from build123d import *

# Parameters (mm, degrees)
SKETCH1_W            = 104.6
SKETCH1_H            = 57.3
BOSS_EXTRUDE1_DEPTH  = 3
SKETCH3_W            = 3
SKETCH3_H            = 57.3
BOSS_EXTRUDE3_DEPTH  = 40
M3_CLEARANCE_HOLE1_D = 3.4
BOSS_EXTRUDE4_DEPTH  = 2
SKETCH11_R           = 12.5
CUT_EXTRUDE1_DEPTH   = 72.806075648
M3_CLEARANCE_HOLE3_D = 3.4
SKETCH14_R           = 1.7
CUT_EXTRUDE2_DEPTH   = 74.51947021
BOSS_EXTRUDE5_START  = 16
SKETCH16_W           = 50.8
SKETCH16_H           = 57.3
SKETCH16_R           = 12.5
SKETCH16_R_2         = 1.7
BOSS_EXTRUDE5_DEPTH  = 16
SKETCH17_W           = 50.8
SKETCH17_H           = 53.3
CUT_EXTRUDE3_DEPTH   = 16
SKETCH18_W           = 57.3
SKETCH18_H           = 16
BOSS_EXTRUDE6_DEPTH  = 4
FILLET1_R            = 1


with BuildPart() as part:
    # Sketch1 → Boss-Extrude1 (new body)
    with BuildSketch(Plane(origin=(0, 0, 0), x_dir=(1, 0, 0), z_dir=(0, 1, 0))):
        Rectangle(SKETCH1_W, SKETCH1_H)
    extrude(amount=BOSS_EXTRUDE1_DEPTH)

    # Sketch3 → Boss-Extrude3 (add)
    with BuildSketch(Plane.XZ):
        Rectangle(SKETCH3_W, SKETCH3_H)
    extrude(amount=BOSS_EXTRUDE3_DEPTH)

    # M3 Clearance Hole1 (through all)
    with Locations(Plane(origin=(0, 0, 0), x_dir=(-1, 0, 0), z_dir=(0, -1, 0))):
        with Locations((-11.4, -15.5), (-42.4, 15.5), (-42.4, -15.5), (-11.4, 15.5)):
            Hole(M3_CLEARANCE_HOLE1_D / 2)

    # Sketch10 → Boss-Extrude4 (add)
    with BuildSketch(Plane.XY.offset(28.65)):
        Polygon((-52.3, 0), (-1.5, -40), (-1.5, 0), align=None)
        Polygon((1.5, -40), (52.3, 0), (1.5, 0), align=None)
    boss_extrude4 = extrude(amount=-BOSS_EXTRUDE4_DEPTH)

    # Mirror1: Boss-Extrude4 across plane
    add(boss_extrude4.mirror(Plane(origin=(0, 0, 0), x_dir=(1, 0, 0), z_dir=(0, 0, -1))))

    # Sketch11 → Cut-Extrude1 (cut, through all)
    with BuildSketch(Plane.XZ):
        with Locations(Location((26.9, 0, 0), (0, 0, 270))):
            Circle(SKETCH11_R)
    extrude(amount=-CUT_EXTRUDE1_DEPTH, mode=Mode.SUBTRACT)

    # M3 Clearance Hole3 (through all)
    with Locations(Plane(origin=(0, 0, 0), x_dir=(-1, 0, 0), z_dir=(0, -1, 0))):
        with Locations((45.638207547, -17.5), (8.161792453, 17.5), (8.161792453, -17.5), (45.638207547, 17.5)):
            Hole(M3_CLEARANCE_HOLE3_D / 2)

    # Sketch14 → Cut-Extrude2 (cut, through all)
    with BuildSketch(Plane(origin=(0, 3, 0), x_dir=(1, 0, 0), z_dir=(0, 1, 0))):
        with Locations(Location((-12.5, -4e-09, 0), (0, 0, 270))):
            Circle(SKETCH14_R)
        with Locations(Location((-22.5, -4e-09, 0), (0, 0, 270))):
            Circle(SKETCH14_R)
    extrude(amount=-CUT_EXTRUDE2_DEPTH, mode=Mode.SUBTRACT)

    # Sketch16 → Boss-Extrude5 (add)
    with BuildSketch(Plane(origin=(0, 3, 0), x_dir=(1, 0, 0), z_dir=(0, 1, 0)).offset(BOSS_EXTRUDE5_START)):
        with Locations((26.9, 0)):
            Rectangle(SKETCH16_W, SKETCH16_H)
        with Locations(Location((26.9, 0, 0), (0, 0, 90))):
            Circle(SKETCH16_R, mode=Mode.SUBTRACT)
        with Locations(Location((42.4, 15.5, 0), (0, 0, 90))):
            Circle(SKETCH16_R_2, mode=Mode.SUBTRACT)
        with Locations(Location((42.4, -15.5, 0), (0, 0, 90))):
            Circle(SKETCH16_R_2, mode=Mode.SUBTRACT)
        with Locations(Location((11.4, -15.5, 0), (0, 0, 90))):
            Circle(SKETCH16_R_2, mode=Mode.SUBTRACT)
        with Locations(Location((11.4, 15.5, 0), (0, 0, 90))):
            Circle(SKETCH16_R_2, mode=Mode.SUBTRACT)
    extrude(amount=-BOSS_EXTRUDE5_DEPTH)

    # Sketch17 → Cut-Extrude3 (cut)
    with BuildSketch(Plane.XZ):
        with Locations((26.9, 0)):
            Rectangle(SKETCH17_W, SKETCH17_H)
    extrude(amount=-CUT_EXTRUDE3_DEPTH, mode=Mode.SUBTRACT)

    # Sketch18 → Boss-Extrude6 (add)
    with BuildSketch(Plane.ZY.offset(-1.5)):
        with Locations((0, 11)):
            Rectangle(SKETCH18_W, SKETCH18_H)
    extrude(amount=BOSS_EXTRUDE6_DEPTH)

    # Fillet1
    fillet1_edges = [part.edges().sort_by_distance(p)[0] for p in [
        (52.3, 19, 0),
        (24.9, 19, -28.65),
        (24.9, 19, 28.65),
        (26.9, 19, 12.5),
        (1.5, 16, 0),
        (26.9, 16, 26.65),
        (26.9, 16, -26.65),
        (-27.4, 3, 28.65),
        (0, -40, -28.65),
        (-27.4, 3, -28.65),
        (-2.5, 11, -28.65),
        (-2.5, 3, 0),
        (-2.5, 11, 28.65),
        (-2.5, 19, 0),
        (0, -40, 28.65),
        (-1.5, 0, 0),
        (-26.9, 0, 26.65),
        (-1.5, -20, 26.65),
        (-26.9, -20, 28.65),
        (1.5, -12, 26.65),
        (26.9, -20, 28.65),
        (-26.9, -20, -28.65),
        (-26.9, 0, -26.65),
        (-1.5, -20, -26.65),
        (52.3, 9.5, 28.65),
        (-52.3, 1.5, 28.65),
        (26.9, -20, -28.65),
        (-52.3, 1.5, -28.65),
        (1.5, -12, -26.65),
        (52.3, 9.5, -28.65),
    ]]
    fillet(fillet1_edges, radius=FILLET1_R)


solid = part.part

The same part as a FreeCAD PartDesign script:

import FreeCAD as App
import Part
import Sketcher

V = App.Vector


def edges_at(feature, points):
    """Names of the edges that pass closest to the given points."""
    edges = feature.Shape.Edges
    near = lambda p: min(range(len(edges)), key=lambda i: edges[i].distToShape(Part.Vertex(*p))[0])
    return sorted({f"Edge{near(p) + 1}" for p in points})

doc = App.newDocument("Part")
body = doc.addObject("PartDesign::Body", "Body")

# Sketch on XZ plane
sketch1 = body.newObject("Sketcher::SketchObject", "Sketch")
sketch1.AttachmentSupport = (doc.getObject("XZ_Plane"), [""])
sketch1.MapMode = "FlatFace"
sketch1.addGeometry([
    Part.LineSegment(V(-52.3, -28.65, 0), V(-52.3, 28.65, 0)),
    Part.LineSegment(V(-52.3, 28.65, 0), V(52.3, 28.65, 0)),
    Part.LineSegment(V(52.3, 28.65, 0), V(52.3, -28.65, 0)),
    Part.LineSegment(V(52.3, -28.65, 0), V(-52.3, -28.65, 0)),
], False)
sketch1.addConstraint([
    Sketcher.Constraint("Coincident", 0, 2, 1, 1),
    Sketcher.Constraint("Coincident", 1, 2, 2, 1),
    Sketcher.Constraint("Coincident", 2, 2, 3, 1),
    Sketcher.Constraint("Coincident", 3, 2, 0, 1),
    Sketcher.Constraint("Vertical", 0),
    Sketcher.Constraint("Horizontal", 1),
    Sketcher.Constraint("Vertical", 2),
    Sketcher.Constraint("Horizontal", 3),
    Sketcher.Constraint("Symmetric", 0, 2, 2, 2, -1, 1),
    Sketcher.Constraint("DistanceX", 1, 1, 1, 2, 104.6),
    Sketcher.Constraint("DistanceY", 0, 1, 0, 2, 57.3),
])
pad1 = body.newObject("PartDesign::Pad", "Pad")
pad1.Profile = sketch1
pad1.Length = 3
pad1.Reversed = True

# Sketch on XZ plane
sketch2 = body.newObject("Sketcher::SketchObject", "Sketch001")
sketch2.AttachmentSupport = (doc.getObject("XZ_Plane"), [""])
sketch2.MapMode = "FlatFace"
sketch2.addGeometry([
    Part.LineSegment(V(-1.5, 28.65, 0), V(-1.5, -28.65, 0)),
    Part.LineSegment(V(-1.5, -28.65, 0), V(1.5, -28.65, 0)),
    Part.LineSegment(V(1.5, -28.65, 0), V(1.5, 28.65, 0)),
    Part.LineSegment(V(1.5, 28.65, 0), V(-1.5, 28.65, 0)),
], False)
sketch2.addConstraint([
    Sketcher.Constraint("Coincident", 0, 2, 1, 1),
    Sketcher.Constraint("Coincident", 1, 2, 2, 1),
    Sketcher.Constraint("Coincident", 2, 2, 3, 1),
    Sketcher.Constraint("Coincident", 3, 2, 0, 1),
    Sketcher.Constraint("Vertical", 0),
    Sketcher.Constraint("Horizontal", 1),
    Sketcher.Constraint("Vertical", 2),
    Sketcher.Constraint("Horizontal", 3),
    Sketcher.Constraint("Symmetric", 0, 2, 2, 2, -1, 1),
    Sketcher.Constraint("DistanceX", 1, 1, 1, 2, 3.0),
    Sketcher.Constraint("DistanceY", 0, 2, 0, 1, 57.3),
])
pad2 = body.newObject("PartDesign::Pad", "Pad001")
pad2.Profile = sketch2
pad2.Length = 40

# Sketch on XZ plane
sketch3 = body.newObject("Sketcher::SketchObject", "Sketch002")
sketch3.AttachmentSupport = (doc.getObject("XZ_Plane"), [""])
sketch3.MapMode = "FlatFace"
sketch3.addGeometry([
    Part.Circle(V(11.4, 15.5, 0), V(0, 0, 1), 1.7),
    Part.Circle(V(42.4, -15.5, 0), V(0, 0, 1), 1.7),
    Part.Circle(V(42.4, 15.5, 0), V(0, 0, 1), 1.7),
    Part.Circle(V(11.4, -15.5, 0), V(0, 0, 1), 1.7),
], False)
sketch3.addConstraint([
    Sketcher.Constraint("Equal", 0, 1),
    Sketcher.Constraint("Equal", 1, 2),
    Sketcher.Constraint("Equal", 2, 3),
    Sketcher.Constraint("Symmetric", 1, 3, 2, 3, -1),
    Sketcher.Constraint("Symmetric", 0, 3, 3, 3, -1),
    Sketcher.Constraint("Horizontal", 0, 3, 2, 3),
    Sketcher.Constraint("Diameter", 0, 3.4),
    Sketcher.Constraint("DistanceX", 0, 3, 1, 3, 31.0),
    Sketcher.Constraint("DistanceY", 1, 3, 0, 3, 31.0),
    Sketcher.Constraint("DistanceX", -1, 1, 0, 3, 11.4),
])
doc.recompute()
hole = body.newObject("PartDesign::Hole", "Hole")
hole.Profile = sketch3
hole.ThreadType = "None"
hole.Diameter = 3.4
hole.DepthType = "ThroughAll"

# Sketch on XY plane
sketch4 = body.newObject("Sketcher::SketchObject", "Sketch003")
sketch4.AttachmentSupport = (doc.getObject("XY_Plane"), [""])
sketch4.MapMode = "FlatFace"
sketch4.AttachmentOffset = App.Placement(V(0, 0, 28.65), App.Rotation())
sketch4.addGeometry([
    Part.LineSegment(V(-52.3, 0, 0), V(-1.5, -40, 0)),  # 0
    Part.LineSegment(V(-1.5, -40, 0), V(-1.5, 0, 0)),  # 1
    Part.LineSegment(V(-1.5, 0, 0), V(-52.3, 0, 0)),  # 2
    Part.LineSegment(V(1.5, -40, 0), V(52.3, 0, 0)),  # 3
    Part.LineSegment(V(52.3, 0, 0), V(1.5, 0, 0)),  # 4
    Part.LineSegment(V(1.5, 0, 0), V(1.5, -40, 0)),  # 5
], False)
sketch4.addConstraint([
    Sketcher.Constraint("Coincident", 0, 2, 1, 1),
    Sketcher.Constraint("Coincident", 1, 2, 2, 1),
    Sketcher.Constraint("Coincident", 2, 2, 0, 1),
    Sketcher.Constraint("Coincident", 3, 2, 4, 1),
    Sketcher.Constraint("Coincident", 4, 2, 5, 1),
    Sketcher.Constraint("Coincident", 5, 2, 3, 1),
    Sketcher.Constraint("Vertical", 1),
    Sketcher.Constraint("Horizontal", 2),
    Sketcher.Constraint("Horizontal", 4),
    Sketcher.Constraint("Vertical", 5),
    Sketcher.Constraint("Symmetric", 2, 2, 3, 2, -1, 1),
    Sketcher.Constraint("Symmetric", 1, 2, 4, 2, -2),
    Sketcher.Constraint("Horizontal", 0, 2, 5, 2),
    Sketcher.Constraint("DistanceY", 1, 1, 1, 2, 40.0),
    Sketcher.Constraint("DistanceX", 2, 2, 2, 1, 50.8),
    Sketcher.Constraint("DistanceX", 1, 2, 4, 2, 3.0),
])
pad3 = body.newObject("PartDesign::Pad", "Pad002")
pad3.Profile = sketch4
pad3.Length = 2
pad3.Reversed = True
doc.recompute()

mirrored = body.newObject("PartDesign::Mirrored", "Mirrored")
mirrored.Originals = [pad3]
mirrored.MirrorPlane = (doc.getObject("XY_Plane"), [""])
body.Tip = mirrored

# Sketch on XZ plane
sketch5 = body.newObject("Sketcher::SketchObject", "Sketch004")
sketch5.AttachmentSupport = (doc.getObject("XZ_Plane"), [""])
sketch5.MapMode = "FlatFace"
sketch5.addGeometry(Part.Circle(V(26.9, 0, 0), V(0, 0, 1), 12.5), False)
sketch5.addConstraint([
    Sketcher.Constraint("PointOnObject", 0, 3, -1),
    Sketcher.Constraint("Diameter", 0, 25.0),
    Sketcher.Constraint("DistanceX", -1, 1, 0, 3, 26.9),
])
pocket1 = body.newObject("PartDesign::Pocket", "Pocket")
pocket1.Profile = sketch5
pocket1.Type = "ThroughAll"

# Sketch on XZ plane
sketch6 = body.newObject("Sketcher::SketchObject", "Sketch005")
sketch6.AttachmentSupport = (doc.getObject("XZ_Plane"), [""])
sketch6.MapMode = "FlatFace"
sketch6.addGeometry([
    Part.Circle(V(-45.638208, 17.5, 0), V(0, 0, 1), 1.7),
    Part.Circle(V(-8.161792, -17.5, 0), V(0, 0, 1), 1.7),
    Part.Circle(V(-8.161792, 17.5, 0), V(0, 0, 1), 1.7),
    Part.Circle(V(-45.638208, -17.5, 0), V(0, 0, 1), 1.7),
], False)
sketch6.addConstraint([
    Sketcher.Constraint("Equal", 0, 1),
    Sketcher.Constraint("Equal", 1, 2),
    Sketcher.Constraint("Equal", 2, 3),
    Sketcher.Constraint("Symmetric", 1, 3, 2, 3, -1),
    Sketcher.Constraint("Symmetric", 0, 3, 3, 3, -1),
    Sketcher.Constraint("Horizontal", 0, 3, 2, 3),
    Sketcher.Constraint("Diameter", 0, 3.4),
    Sketcher.Constraint("DistanceY", 1, 3, 0, 3, 35.0),
    Sketcher.Constraint("DistanceX", 0, 3, -1, 1, 45.638208),
    Sketcher.Constraint("DistanceX", 1, 3, -1, 1, 8.161792),
])
doc.recompute()
hole2 = body.newObject("PartDesign::Hole", "Hole001")
hole2.Profile = sketch6
hole2.ThreadType = "None"
hole2.Diameter = 3.4
hole2.DepthType = "ThroughAll"

# Sketch on XZ plane
sketch7 = body.newObject("Sketcher::SketchObject", "Sketch006")
sketch7.AttachmentSupport = (doc.getObject("XZ_Plane"), [""])
sketch7.MapMode = "FlatFace"
sketch7.AttachmentOffset = App.Placement(V(0, 0, -3), App.Rotation())
sketch7.addGeometry([
    Part.Circle(V(-12.5, 0, 0), V(0, 0, 1), 1.7),
    Part.Circle(V(-22.5, 0, 0), V(0, 0, 1), 1.7),
], False)
sketch7.addConstraint([
    Sketcher.Constraint("Equal", 0, 1),
    Sketcher.Constraint("PointOnObject", 0, 3, -1),
    Sketcher.Constraint("PointOnObject", 1, 3, -1),
    Sketcher.Constraint("Diameter", 0, 3.4),
    Sketcher.Constraint("DistanceX", 1, 3, 0, 3, 10.0),
    Sketcher.Constraint("DistanceX", 0, 3, -1, 1, 12.5),
])
pocket2 = body.newObject("PartDesign::Pocket", "Pocket001")
pocket2.Profile = sketch7
pocket2.Type = "ThroughAll"
pocket2.Reversed = True

# Sketch on XZ plane
sketch8 = body.newObject("Sketcher::SketchObject", "Sketch007")
sketch8.AttachmentSupport = (doc.getObject("XZ_Plane"), [""])
sketch8.MapMode = "FlatFace"
sketch8.AttachmentOffset = App.Placement(V(0, 0, -19), App.Rotation())
sketch8.addGeometry([
    Part.LineSegment(V(1.5, -28.65, 0), V(1.5, 28.65, 0)),  # 0
    Part.LineSegment(V(1.5, 28.65, 0), V(52.3, 28.65, 0)),  # 1
    Part.LineSegment(V(52.3, 28.65, 0), V(52.3, -28.65, 0)),  # 2
    Part.LineSegment(V(52.3, -28.65, 0), V(1.5, -28.65, 0)),  # 3
    Part.Circle(V(11.4, 15.5, 0), V(0, 0, 1), 1.7),  # 4
    Part.Circle(V(42.4, 15.5, 0), V(0, 0, 1), 1.7),  # 5
    Part.Circle(V(11.4, -15.5, 0), V(0, 0, 1), 1.7),  # 6
    Part.Circle(V(26.9, 0, 0), V(0, 0, 1), 12.5),  # 7
    Part.Circle(V(42.4, -15.5, 0), V(0, 0, 1), 1.7),  # 8
], False)
sketch8.addConstraint([
    Sketcher.Constraint("Coincident", 0, 2, 1, 1),
    Sketcher.Constraint("Coincident", 1, 2, 2, 1),
    Sketcher.Constraint("Coincident", 2, 2, 3, 1),
    Sketcher.Constraint("Coincident", 3, 2, 0, 1),
    Sketcher.Constraint("Vertical", 0),
    Sketcher.Constraint("Horizontal", 1),
    Sketcher.Constraint("Vertical", 2),
    Sketcher.Constraint("Horizontal", 3),
    Sketcher.Constraint("Equal", 4, 5),
    Sketcher.Constraint("Equal", 5, 6),
    Sketcher.Constraint("Equal", 6, 8),
    Sketcher.Constraint("Symmetric", 4, 3, 6, 3, -1),
    Sketcher.Constraint("Symmetric", 5, 3, 8, 3, -1),
    Sketcher.Constraint("PointOnObject", 7, 3, -1),
    Sketcher.Constraint("Horizontal", 4, 3, 5, 3),
    Sketcher.Constraint("Diameter", 7, 25.0),
    Sketcher.Constraint("Diameter", 4, 3.4),
    Sketcher.Constraint("DistanceX", 1, 1, 1, 2, 50.8),
    Sketcher.Constraint("DistanceY", 0, 1, 0, 2, 57.3),
    Sketcher.Constraint("DistanceX", 4, 3, 5, 3, 31.0),
    Sketcher.Constraint("DistanceY", 6, 3, 4, 3, 31.0),
    Sketcher.Constraint("DistanceX", -1, 1, 4, 3, 11.4),
    Sketcher.Constraint("DistanceX", -1, 1, 7, 3, 26.9),
    Sketcher.Constraint("DistanceX", -1, 1, 0, 2, 1.5),
    Sketcher.Constraint("DistanceY", -1, 1, 0, 2, 28.65),
])
pad4 = body.newObject("PartDesign::Pad", "Pad003")
pad4.Profile = sketch8
pad4.Length = 16

# Sketch on XZ plane
sketch9 = body.newObject("Sketcher::SketchObject", "Sketch008")
sketch9.AttachmentSupport = (doc.getObject("XZ_Plane"), [""])
sketch9.MapMode = "FlatFace"
sketch9.addGeometry([
    Part.LineSegment(V(1.5, 26.65, 0), V(1.5, -26.65, 0)),
    Part.LineSegment(V(1.5, -26.65, 0), V(52.3, -26.65, 0)),
    Part.LineSegment(V(52.3, -26.65, 0), V(52.3, 26.65, 0)),
    Part.LineSegment(V(52.3, 26.65, 0), V(1.5, 26.65, 0)),
], False)
sketch9.addConstraint([
    Sketcher.Constraint("Coincident", 0, 2, 1, 1),
    Sketcher.Constraint("Coincident", 1, 2, 2, 1),
    Sketcher.Constraint("Coincident", 2, 2, 3, 1),
    Sketcher.Constraint("Coincident", 3, 2, 0, 1),
    Sketcher.Constraint("Vertical", 0),
    Sketcher.Constraint("Horizontal", 1),
    Sketcher.Constraint("Vertical", 2),
    Sketcher.Constraint("Horizontal", 3),
    Sketcher.Constraint("DistanceX", 1, 1, 1, 2, 50.8),
    Sketcher.Constraint("DistanceY", 0, 2, 0, 1, 53.3),
    Sketcher.Constraint("DistanceX", -1, 1, 0, 2, 1.5),
    Sketcher.Constraint("DistanceY", 0, 2, -1, 1, 26.65),
])
pocket3 = body.newObject("PartDesign::Pocket", "Pocket002")
pocket3.Profile = sketch9
pocket3.Length = 16

# Sketch on YZ plane
sketch10 = body.newObject("Sketcher::SketchObject", "Sketch009")
sketch10.AttachmentSupport = (doc.getObject("YZ_Plane"), [""])
sketch10.MapMode = "FlatFace"
sketch10.AttachmentOffset = App.Placement(V(0, 0, 1.5), App.Rotation())
sketch10.addGeometry([
    Part.LineSegment(V(19, -28.65, 0), V(3, -28.65, 0)),
    Part.LineSegment(V(3, -28.65, 0), V(3, 28.65, 0)),
    Part.LineSegment(V(3, 28.65, 0), V(19, 28.65, 0)),
    Part.LineSegment(V(19, 28.65, 0), V(19, -28.65, 0)),
], False)
sketch10.addConstraint([
    Sketcher.Constraint("Coincident", 0, 2, 1, 1),
    Sketcher.Constraint("Coincident", 1, 2, 2, 1),
    Sketcher.Constraint("Coincident", 2, 2, 3, 1),
    Sketcher.Constraint("Coincident", 3, 2, 0, 1),
    Sketcher.Constraint("Horizontal", 0),
    Sketcher.Constraint("Vertical", 1),
    Sketcher.Constraint("Horizontal", 2),
    Sketcher.Constraint("Vertical", 3),
    Sketcher.Constraint("DistanceX", 0, 2, 0, 1, 16.0),
    Sketcher.Constraint("DistanceY", 1, 1, 1, 2, 57.3),
    Sketcher.Constraint("DistanceX", -1, 1, 0, 2, 3.0),
    Sketcher.Constraint("DistanceY", 0, 2, -1, 1, 28.65),
])
pad5 = body.newObject("PartDesign::Pad", "Pad004")
pad5.Profile = sketch10
pad5.Length = 4
pad5.Reversed = True
doc.recompute()

fillet = body.newObject("PartDesign::Fillet", "Fillet")
fillet.Base = (pad5, edges_at(pad5, [
    (52.3, 19, 0),
    (24.9, 19, -28.65),
    (24.9, 19, 28.65),
    (26.9, 19, 12.5),
    (1.5, 16, 0),
    (26.9, 16, 26.65),
    (26.9, 16, -26.65),
    (-27.4, 3, 28.65),
    (0, -40, -28.65),
    (-27.4, 3, -28.65),
    (-2.5, 11, -28.65),
    (-2.5, 3, 0),
    (-2.5, 11, 28.65),
    (-2.5, 19, 0),
    (0, -40, 28.65),
    (-1.5, 0, 0),
    (-26.9, 0, 26.65),
    (-1.5, -20, 26.65),
    (-26.9, -20, 28.65),
    (1.5, -12, 26.65),
    (26.9, -20, 28.65),
    (-26.9, -20, -28.65),
    (-26.9, 0, -26.65),
    (-1.5, -20, -26.65),
    (52.3, 9.5, 28.65),
    (-52.3, 1.5, 28.65),
    (26.9, -20, -28.65),
    (-52.3, 1.5, -28.65),
    (1.5, -12, -26.65),
    (52.3, 9.5, -28.65),
]))
fillet.Radius = 1

doc.recompute()
